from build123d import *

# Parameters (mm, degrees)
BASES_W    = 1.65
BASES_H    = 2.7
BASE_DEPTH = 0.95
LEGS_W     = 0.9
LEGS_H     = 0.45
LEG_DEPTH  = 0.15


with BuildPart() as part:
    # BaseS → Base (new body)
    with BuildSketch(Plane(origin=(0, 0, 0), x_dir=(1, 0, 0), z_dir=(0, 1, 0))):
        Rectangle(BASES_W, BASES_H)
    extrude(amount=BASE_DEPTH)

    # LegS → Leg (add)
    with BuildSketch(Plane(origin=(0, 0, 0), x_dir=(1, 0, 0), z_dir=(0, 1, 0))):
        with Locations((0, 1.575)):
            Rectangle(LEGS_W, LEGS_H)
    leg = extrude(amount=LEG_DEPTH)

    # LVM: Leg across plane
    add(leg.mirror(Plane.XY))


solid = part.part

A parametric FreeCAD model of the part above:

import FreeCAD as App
import Part
import Sketcher


def add_polygon(sketch, points):
    """Adds a closed chain of lines whose ends are joined by coincident constraints."""
    first, n = sketch.GeometryCount, len(points)
    for a, b in zip(points, points[1:] + points[:1]):
        sketch.addGeometry(Part.LineSegment(App.Vector(*a, 0), App.Vector(*b, 0)), False)
    for i in range(n):
        sketch.addConstraint(Sketcher.Constraint("Coincident", first + i, 2, first + (i + 1) % n, 1))

doc = App.newDocument("Part")
body = doc.addObject("PartDesign::Body", "Body")

# Sketch on XZ plane
sketch1 = doc.addObject("Sketcher::SketchObject", "Sketch")
body.addObject(sketch1)
sketch1.AttachmentSupport = (doc.XZ_Plane, [""])
sketch1.MapMode = "FlatFace"
add_polygon(sketch1, [(-0.8, -1.4), (-0.8, 1.4), (0.8, 1.4), (0.8, -1.4)])  # lines 0-3
sketch1.addConstraint([
    Sketcher.Constraint("Vertical", 0),
    Sketcher.Constraint("Horizontal", 1),
    Sketcher.Constraint("Vertical", 2),
    Sketcher.Constraint("Horizontal", 3),
    Sketcher.Constraint("Symmetric", 0, 2, 2, 2, -1, 1),
    Sketcher.Constraint("DistanceY", 0, 1, 0, 2, 2.7),
    Sketcher.Constraint("DistanceX", 1, 1, 1, 2, 1.65),
])
pad1 = doc.addObject("PartDesign::Pad", "Pad")
body.addObject(pad1)
pad1.Profile = sketch1
pad1.Length = 0.95
pad1.Reversed = True

# Sketch on XZ plane
sketch2 = doc.addObject("Sketcher::SketchObject", "Sketch001")
body.addObject(sketch2)
sketch2.AttachmentSupport = (doc.XZ_Plane, [""])
sketch2.MapMode = "FlatFace"
add_polygon(sketch2, [(-0.45, -1.8), (-0.45, -1.35), (0.45, -1.35), (0.45, -1.8)])  # lines 0-3
sketch2.addConstraint([
    Sketcher.Constraint("Vertical", 0),
    Sketcher.Constraint("Horizontal", 1),
    Sketcher.Constraint("Vertical", 2),
    Sketcher.Constraint("Horizontal", 3),
    Sketcher.Constraint("DistanceX", 1, 1, 1, 2, 0.9),
    Sketcher.Constraint("DistanceY", 0, 1, 0, 2, 0.45),
    Sketcher.Constraint("DistanceY", 2, 2, -1, 1, 1.8),
    Sketcher.Constraint("DistanceX", 0, 2, -1, 1, 0.45),
])
pad2 = doc.addObject("PartDesign::Pad", "Pad001")
body.addObject(pad2)
pad2.Profile = sketch2
pad2.Length = 0.15
pad2.Reversed = True
doc.recompute()

mirrored = doc.addObject("PartDesign::Mirrored", "Mirrored")
body.addObject(mirrored)
mirrored.Originals = [pad2]
mirrored.MirrorPlane = (doc.XY_Plane, [""])
body.Tip = mirrored

doc.recompute()
